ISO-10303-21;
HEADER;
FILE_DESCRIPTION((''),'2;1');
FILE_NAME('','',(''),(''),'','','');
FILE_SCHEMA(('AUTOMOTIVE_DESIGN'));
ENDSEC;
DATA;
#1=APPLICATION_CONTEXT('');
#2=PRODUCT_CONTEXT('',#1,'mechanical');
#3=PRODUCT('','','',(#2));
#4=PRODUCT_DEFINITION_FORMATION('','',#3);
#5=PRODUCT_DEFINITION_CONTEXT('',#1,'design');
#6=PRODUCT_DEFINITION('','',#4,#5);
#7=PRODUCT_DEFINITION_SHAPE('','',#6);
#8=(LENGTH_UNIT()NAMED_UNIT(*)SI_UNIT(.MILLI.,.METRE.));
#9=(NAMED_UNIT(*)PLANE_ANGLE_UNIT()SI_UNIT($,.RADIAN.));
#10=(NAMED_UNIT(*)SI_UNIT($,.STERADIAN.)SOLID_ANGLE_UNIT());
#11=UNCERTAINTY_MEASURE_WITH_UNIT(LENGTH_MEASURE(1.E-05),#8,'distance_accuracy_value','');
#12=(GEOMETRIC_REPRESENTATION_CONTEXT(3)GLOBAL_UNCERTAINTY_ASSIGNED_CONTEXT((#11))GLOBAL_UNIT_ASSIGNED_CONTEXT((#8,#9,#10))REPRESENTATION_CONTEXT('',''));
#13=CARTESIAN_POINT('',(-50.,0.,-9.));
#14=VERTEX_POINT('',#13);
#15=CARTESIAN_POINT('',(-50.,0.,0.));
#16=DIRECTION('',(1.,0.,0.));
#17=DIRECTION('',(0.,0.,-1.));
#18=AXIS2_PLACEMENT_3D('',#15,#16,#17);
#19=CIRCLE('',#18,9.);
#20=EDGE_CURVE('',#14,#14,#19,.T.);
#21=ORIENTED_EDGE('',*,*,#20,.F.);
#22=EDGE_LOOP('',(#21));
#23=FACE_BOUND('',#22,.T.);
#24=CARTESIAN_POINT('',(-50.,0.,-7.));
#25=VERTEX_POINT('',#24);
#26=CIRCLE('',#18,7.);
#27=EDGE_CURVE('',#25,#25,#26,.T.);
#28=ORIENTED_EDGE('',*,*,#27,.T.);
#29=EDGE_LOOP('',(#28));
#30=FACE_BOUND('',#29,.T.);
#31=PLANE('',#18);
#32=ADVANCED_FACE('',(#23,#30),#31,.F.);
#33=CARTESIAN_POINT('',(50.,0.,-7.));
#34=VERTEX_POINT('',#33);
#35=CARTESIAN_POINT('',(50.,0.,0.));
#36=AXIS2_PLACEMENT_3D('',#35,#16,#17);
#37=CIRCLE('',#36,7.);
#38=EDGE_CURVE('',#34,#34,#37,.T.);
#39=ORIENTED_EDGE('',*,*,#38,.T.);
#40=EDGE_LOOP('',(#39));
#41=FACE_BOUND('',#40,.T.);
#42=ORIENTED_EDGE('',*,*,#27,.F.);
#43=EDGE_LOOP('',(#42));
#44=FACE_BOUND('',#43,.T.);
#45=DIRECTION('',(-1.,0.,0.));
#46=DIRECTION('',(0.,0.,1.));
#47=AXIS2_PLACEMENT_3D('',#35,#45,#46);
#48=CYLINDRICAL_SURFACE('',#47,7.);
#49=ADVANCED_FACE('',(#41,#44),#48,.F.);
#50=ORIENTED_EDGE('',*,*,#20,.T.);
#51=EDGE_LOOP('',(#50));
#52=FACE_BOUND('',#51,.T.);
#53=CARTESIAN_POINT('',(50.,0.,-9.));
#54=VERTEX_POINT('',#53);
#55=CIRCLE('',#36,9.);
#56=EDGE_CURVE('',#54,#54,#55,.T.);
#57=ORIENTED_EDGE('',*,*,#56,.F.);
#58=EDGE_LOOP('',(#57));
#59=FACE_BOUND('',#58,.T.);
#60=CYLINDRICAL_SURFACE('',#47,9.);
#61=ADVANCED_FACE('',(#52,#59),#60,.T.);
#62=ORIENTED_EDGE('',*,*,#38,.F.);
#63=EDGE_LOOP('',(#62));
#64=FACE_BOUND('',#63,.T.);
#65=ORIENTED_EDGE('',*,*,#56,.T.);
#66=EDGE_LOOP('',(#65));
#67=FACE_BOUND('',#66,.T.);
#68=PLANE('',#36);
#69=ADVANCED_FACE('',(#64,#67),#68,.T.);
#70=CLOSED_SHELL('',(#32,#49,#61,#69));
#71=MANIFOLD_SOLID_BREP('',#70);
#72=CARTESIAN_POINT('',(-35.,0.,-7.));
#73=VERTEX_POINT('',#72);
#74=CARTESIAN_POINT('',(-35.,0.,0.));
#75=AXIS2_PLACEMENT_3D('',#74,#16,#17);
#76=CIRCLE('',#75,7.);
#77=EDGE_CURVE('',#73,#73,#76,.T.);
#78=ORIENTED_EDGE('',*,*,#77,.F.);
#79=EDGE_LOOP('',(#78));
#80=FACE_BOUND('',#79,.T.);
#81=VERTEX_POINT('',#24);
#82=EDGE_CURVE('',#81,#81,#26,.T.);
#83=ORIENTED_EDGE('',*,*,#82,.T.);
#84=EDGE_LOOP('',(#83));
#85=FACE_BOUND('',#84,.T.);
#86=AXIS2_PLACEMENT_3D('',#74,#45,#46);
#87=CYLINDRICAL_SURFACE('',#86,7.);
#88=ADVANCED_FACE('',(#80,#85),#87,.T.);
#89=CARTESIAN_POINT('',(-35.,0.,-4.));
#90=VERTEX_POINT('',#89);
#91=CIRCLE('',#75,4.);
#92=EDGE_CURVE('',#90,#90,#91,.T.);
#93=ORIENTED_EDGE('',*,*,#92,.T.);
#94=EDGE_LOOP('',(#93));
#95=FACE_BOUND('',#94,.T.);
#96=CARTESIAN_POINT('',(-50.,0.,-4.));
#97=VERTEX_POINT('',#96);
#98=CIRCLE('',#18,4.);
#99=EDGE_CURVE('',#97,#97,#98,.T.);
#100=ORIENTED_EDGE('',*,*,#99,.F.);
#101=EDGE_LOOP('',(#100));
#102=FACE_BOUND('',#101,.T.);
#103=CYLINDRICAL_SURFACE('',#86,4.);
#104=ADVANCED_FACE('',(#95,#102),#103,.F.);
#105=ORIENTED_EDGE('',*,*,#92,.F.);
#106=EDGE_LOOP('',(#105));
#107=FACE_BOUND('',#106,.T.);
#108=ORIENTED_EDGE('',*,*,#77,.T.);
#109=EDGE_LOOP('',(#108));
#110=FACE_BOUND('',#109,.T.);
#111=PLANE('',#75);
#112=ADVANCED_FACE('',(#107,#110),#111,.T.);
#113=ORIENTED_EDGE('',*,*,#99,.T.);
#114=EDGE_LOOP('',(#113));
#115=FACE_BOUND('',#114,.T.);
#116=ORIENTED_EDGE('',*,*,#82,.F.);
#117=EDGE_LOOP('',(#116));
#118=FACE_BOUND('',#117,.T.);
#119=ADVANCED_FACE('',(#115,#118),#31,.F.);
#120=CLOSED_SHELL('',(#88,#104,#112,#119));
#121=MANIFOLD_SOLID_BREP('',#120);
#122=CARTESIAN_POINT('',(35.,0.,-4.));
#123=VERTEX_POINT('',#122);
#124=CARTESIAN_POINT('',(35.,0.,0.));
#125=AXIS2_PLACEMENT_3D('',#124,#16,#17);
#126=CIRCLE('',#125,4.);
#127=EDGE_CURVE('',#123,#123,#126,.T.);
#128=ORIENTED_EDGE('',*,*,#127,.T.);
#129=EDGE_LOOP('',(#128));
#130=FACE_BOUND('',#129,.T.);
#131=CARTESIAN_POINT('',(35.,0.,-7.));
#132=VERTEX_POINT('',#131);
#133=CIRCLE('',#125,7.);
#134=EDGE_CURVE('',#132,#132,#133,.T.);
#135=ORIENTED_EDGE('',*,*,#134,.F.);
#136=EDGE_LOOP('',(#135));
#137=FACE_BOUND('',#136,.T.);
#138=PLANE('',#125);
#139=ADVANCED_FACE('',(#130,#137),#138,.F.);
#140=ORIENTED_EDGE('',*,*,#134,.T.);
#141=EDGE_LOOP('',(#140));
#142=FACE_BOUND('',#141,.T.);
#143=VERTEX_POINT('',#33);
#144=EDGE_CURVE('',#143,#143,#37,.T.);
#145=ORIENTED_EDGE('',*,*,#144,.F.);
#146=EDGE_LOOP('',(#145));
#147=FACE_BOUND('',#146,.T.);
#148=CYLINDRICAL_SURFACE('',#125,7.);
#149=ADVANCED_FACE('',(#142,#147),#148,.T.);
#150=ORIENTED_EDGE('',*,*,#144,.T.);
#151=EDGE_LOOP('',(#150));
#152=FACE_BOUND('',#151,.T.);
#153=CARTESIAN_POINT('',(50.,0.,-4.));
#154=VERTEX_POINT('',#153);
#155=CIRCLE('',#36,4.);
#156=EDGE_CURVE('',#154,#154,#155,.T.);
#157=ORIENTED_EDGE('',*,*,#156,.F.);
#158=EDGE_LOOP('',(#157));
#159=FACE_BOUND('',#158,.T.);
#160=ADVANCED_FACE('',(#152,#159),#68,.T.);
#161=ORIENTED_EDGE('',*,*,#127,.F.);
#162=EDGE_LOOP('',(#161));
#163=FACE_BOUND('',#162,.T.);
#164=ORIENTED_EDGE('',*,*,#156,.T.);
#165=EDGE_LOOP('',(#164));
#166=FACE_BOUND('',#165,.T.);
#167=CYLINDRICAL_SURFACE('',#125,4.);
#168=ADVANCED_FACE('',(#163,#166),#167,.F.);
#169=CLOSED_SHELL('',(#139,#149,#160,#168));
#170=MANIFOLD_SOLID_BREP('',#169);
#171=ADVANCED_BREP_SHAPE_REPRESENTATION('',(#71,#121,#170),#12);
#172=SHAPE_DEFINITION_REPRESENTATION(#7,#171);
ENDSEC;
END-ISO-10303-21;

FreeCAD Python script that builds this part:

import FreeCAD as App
import Part
import Sketcher

doc = App.newDocument("Part")
params = doc.addObject("Spreadsheet::Sheet", "Params")
for row, (alias, value) in enumerate([
    ("sketch1_diameter", "18 mm"),
    ("sketch1_diameter2", "14 mm"),
    ("pad1_length", "100 mm"),
    ("sketch2_diameter", "14 mm"),
    ("sketch2_diameter2", "8 mm"),
    ("pad2_length", "15 mm"),
    ("sketch3_diameter", "14 mm"),
    ("sketch3_diameter2", "8 mm"),
    ("pad3_length", "15 mm"),
], start=1):
    params.set(f"A{row}", alias)
    params.set(f"B{row}", "=" + value)
    params.setAlias(f"B{row}", alias)

body = doc.addObject("PartDesign::Body", "Body")

sketch1 = doc.addObject("Sketcher::SketchObject", "Sketch")
body.addObject(sketch1)
sketch1.AttachmentSupport = (doc.YZ_Plane, [""])
sketch1.MapMode = "FlatFace"
sketch1.addGeometry(Part.Circle(App.Vector(0, 0, 0), App.Vector(0, 0, 1), 9), False)
sketch1.addGeometry(Part.Circle(App.Vector(0, 0, 0), App.Vector(0, 0, 1), 7), False)
sketch1.addConstraint(Sketcher.Constraint("Coincident", 0, 3, -1, 1))
sketch1.addConstraint(Sketcher.Constraint("Coincident", 1, 3, -1, 1))
sketch1.addConstraint(Sketcher.Constraint("Diameter", 0, 18.0))
sketch1.addConstraint(Sketcher.Constraint("Diameter", 1, 14.0))
sketch1.setExpression("Constraints[2]", "Params.sketch1_diameter")
sketch1.setExpression("Constraints[3]", "Params.sketch1_diameter2")
pad1 = doc.addObject("PartDesign::Pad", "Pad")
body.addObject(pad1)
pad1.Profile = sketch1
pad1.setExpression("Length", "Params.pad1_length")
pad1.Midplane = True
body2 = doc.addObject("PartDesign::Body", "Body001")

sketch2 = doc.addObject("Sketcher::SketchObject", "Sketch001")
body2.addObject(sketch2)
sketch2.AttachmentSupport = (doc.getObject("YZ_Plane001"), [""])
sketch2.MapMode = "FlatFace"
sketch2.AttachmentOffset = App.Placement(App.Vector(0, 0, 50), App.Rotation())
sketch2.addGeometry(Part.Circle(App.Vector(0, 0, 0), App.Vector(0, 0, 1), 7), False)
sketch2.addGeometry(Part.Circle(App.Vector(0, 0, 0), App.Vector(0, 0, 1), 4), False)
sketch2.addConstraint(Sketcher.Constraint("Coincident", 0, 3, -1, 1))
sketch2.addConstraint(Sketcher.Constraint("Coincident", 1, 3, -1, 1))
sketch2.addConstraint(Sketcher.Constraint("Diameter", 0, 14.0))
sketch2.addConstraint(Sketcher.Constraint("Diameter", 1, 8.0))
sketch2.setExpression("Constraints[2]", "Params.sketch2_diameter")
sketch2.setExpression("Constraints[3]", "Params.sketch2_diameter2")
pad2 = doc.addObject("PartDesign::Pad", "Pad001")
body2.addObject(pad2)
pad2.Profile = sketch2
pad2.setExpression("Length", "Params.pad2_length")
pad2.Reversed = True
body3 = doc.addObject("PartDesign::Body", "Body002")

sketch3 = doc.addObject("Sketcher::SketchObject", "Sketch002")
body3.addObject(sketch3)
sketch3.AttachmentSupport = (doc.getObject("YZ_Plane002"), [""])
sketch3.MapMode = "FlatFace"
sketch3.AttachmentOffset = App.Placement(App.Vector(0, 0, -50), App.Rotation())
sketch3.addGeometry(Part.Circle(App.Vector(0, 0, 0), App.Vector(0, 0, 1), 7), False)
sketch3.addGeometry(Part.Circle(App.Vector(0, 0, 0), App.Vector(0, 0, 1), 4), False)
sketch3.addConstraint(Sketcher.Constraint("Coincident", 0, 3, -1, 1))
sketch3.addConstraint(Sketcher.Constraint("Coincident", 1, 3, -1, 1))
sketch3.addConstraint(Sketcher.Constraint("Diameter", 0, 14.0))
sketch3.addConstraint(Sketcher.Constraint("Diameter", 1, 8.0))
sketch3.setExpression("Constraints[2]", "Params.sketch3_diameter")
sketch3.setExpression("Constraints[3]", "Params.sketch3_diameter2")
pad3 = doc.addObject("PartDesign::Pad", "Pad002")
body3.addObject(pad3)
pad3.Profile = sketch3
pad3.setExpression("Length", "Params.pad3_length")

doc.recompute()
